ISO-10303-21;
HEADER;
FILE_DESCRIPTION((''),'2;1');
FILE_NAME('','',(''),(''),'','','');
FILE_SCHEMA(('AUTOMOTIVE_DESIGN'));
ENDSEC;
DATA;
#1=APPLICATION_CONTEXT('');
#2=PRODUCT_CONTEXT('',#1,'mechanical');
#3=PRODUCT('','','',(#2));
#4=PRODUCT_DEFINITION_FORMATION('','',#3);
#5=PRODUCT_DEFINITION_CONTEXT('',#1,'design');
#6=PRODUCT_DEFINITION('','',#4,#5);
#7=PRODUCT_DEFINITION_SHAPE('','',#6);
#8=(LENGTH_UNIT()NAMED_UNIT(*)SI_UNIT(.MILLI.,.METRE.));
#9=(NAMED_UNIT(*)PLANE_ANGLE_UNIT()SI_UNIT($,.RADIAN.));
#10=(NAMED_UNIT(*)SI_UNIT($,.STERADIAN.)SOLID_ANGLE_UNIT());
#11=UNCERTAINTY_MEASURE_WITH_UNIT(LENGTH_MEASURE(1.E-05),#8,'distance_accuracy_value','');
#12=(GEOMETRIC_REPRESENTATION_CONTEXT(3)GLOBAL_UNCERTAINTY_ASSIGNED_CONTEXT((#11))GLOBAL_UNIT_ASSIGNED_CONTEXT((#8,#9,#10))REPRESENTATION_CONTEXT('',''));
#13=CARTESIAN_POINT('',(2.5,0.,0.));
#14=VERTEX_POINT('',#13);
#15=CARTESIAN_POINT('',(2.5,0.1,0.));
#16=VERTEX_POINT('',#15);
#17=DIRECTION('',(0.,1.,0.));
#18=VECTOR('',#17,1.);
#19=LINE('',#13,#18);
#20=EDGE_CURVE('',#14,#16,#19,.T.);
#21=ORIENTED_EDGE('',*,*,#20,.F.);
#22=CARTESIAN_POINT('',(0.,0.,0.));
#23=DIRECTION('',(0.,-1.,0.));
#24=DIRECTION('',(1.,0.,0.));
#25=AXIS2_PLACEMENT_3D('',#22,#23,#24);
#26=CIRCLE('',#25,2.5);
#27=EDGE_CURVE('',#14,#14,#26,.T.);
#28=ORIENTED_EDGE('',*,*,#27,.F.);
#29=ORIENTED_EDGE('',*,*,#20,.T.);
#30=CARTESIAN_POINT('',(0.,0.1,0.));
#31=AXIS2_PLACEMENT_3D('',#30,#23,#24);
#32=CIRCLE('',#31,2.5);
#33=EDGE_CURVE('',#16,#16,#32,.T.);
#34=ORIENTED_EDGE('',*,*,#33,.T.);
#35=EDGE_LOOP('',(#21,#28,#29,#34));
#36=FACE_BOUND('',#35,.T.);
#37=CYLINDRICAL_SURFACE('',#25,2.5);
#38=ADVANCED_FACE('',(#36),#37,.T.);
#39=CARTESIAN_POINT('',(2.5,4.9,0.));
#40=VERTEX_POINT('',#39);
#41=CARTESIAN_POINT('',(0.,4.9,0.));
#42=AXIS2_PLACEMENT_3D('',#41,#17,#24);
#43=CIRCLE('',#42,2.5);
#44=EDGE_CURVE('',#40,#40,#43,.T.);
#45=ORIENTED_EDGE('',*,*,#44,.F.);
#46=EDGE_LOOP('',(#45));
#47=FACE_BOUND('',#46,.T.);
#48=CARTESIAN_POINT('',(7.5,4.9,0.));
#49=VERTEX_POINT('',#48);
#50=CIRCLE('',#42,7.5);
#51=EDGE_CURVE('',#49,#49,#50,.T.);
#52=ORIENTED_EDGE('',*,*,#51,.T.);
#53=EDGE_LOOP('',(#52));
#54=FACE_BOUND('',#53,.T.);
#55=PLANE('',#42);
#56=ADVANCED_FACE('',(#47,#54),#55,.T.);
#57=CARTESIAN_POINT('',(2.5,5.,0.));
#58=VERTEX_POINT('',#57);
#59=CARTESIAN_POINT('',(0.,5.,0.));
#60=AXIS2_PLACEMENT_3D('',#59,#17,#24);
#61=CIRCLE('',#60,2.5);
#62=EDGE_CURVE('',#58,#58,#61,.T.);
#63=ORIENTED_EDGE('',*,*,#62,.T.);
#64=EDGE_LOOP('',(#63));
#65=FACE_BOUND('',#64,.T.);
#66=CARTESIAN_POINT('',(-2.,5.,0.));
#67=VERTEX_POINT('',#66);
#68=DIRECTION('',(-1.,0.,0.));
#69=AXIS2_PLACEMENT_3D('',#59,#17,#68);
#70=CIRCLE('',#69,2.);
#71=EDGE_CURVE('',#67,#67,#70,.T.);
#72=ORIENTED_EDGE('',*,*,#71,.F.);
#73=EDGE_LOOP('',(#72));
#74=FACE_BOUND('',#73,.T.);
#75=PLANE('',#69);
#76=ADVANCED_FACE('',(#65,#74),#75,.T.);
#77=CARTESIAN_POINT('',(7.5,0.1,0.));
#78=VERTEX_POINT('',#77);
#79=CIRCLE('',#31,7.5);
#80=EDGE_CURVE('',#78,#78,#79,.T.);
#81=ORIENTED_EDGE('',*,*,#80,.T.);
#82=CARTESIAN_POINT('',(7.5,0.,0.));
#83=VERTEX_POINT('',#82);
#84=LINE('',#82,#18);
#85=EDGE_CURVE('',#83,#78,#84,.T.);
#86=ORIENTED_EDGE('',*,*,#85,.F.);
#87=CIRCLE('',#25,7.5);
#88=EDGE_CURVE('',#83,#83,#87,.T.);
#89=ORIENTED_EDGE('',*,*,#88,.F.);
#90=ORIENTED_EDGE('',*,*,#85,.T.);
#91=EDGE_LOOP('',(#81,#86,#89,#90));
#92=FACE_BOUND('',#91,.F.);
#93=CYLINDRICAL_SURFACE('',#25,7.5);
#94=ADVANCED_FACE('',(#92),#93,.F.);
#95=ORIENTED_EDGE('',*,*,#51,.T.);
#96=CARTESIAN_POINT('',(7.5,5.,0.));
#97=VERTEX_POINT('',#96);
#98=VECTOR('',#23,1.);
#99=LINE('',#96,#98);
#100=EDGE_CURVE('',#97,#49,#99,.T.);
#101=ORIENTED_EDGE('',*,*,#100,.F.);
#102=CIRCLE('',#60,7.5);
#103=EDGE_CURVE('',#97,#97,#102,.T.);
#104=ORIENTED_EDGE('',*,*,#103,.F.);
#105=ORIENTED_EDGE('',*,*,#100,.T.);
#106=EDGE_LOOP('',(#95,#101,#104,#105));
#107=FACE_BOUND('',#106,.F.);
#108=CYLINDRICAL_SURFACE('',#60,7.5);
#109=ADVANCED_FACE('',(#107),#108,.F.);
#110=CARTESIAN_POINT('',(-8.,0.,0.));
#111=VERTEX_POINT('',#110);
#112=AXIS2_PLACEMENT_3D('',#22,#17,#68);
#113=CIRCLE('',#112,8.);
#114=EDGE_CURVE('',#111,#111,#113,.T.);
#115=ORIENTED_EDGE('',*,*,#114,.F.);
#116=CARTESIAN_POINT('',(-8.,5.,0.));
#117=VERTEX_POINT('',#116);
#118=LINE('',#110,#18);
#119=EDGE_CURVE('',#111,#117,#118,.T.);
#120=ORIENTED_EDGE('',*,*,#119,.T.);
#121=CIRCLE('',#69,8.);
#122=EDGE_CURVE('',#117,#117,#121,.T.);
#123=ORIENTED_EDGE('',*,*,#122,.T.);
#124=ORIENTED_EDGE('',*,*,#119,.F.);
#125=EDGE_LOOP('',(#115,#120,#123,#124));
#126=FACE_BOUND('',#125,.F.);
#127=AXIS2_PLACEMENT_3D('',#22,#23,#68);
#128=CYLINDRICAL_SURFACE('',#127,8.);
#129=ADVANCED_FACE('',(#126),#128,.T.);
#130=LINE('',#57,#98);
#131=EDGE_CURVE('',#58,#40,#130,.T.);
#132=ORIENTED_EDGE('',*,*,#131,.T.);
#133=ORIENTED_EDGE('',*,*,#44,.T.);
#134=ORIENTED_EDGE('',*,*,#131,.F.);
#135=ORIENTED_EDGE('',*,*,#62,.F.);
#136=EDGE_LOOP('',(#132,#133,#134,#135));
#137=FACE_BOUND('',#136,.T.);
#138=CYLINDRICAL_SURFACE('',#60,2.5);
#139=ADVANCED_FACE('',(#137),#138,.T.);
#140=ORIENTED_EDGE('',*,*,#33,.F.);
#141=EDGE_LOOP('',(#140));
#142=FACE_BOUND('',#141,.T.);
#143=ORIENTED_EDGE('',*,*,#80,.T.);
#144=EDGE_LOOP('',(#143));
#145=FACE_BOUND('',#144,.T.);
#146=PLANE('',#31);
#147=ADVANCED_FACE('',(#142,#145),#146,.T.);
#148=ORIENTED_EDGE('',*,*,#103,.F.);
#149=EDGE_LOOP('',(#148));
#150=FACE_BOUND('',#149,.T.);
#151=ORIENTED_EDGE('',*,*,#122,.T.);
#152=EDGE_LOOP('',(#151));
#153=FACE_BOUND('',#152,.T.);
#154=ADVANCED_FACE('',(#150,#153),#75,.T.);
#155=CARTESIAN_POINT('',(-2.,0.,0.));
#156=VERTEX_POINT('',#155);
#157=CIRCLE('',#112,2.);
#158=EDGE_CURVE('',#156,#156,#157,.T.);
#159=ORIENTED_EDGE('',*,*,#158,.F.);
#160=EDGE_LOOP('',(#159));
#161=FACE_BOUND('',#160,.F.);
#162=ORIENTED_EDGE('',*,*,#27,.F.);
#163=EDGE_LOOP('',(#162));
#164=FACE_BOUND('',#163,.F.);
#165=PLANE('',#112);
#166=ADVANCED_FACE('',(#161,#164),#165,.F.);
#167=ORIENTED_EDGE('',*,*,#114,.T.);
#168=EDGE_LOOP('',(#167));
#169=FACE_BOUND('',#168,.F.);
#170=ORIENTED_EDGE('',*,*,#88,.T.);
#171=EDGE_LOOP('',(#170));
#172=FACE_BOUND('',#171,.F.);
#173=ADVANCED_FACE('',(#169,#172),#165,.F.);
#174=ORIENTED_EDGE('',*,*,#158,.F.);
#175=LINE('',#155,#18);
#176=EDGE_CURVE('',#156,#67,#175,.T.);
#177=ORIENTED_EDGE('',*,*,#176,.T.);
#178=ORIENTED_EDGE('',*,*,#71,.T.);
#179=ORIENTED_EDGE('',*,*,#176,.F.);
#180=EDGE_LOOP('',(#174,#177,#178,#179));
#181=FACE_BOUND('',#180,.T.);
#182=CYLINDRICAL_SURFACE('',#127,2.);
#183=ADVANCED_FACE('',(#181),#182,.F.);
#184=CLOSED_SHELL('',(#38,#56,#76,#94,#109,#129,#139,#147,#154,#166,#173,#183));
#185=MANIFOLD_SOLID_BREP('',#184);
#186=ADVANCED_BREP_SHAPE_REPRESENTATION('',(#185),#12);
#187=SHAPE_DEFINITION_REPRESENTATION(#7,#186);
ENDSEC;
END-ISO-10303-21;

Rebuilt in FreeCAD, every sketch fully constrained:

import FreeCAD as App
import Part
import Sketcher

doc = App.newDocument("Part")
params = doc.addObject("Spreadsheet::Sheet", "Params")
for row, (alias, value) in enumerate([
    ("sketch1_diameter", "16 mm"),
    ("sketch1_diameter2", "4 mm"),
    ("pad1_length", "5 mm"),
    ("sketch2_diameter", "15 mm"),
    ("sketch2_diameter2", "5 mm"),
    ("pocket1_length", "0.1 mm"),
    ("sketch3_diameter", "15 mm"),
    ("sketch3_diameter2", "5 mm"),
    ("pocket2_length", "0.1 mm"),
], start=1):
    params.set(f"A{row}", alias)
    params.set(f"B{row}", "=" + value)
    params.setAlias(f"B{row}", alias)

body = doc.addObject("PartDesign::Body", "Body")

sketch1 = body.newObject("Sketcher::SketchObject", "Sketch")
sketch1.AttachmentSupport = (doc.getObject("XZ_Plane"), [""])
sketch1.MapMode = "FlatFace"
sketch1.addGeometry([
    Part.Circle(App.Vector(0, 0, 0), App.Vector(0, 0, 1), 8),
    Part.Circle(App.Vector(0, 0, 0), App.Vector(0, 0, 1), 2),
], False)
sketch1.addConstraint([
    Sketcher.Constraint("Coincident", 0, 3, -1, 1),
    Sketcher.Constraint("Coincident", 1, 3, -1, 1),
    Sketcher.Constraint("Diameter", 0, 16.0),
    Sketcher.Constraint("Diameter", 1, 4.0),
])
sketch1.setExpression("Constraints[2]", "Params.sketch1_diameter")
sketch1.setExpression("Constraints[3]", "Params.sketch1_diameter2")
pad1 = body.newObject("PartDesign::Pad", "Pad")
pad1.Profile = sketch1
pad1.setExpression("Length", "Params.pad1_length")
pad1.Reversed = True

sketch2 = body.newObject("Sketcher::SketchObject", "Sketch001")
sketch2.AttachmentSupport = (doc.getObject("XZ_Plane"), [""])
sketch2.MapMode = "FlatFace"
sketch2.AttachmentOffset = App.Placement(App.Vector(0, 0, -5), App.Rotation())
sketch2.addGeometry([
    Part.Circle(App.Vector(0, 0, 0), App.Vector(0, 0, 1), 7.5),
    Part.Circle(App.Vector(0, 0, 0), App.Vector(0, 0, 1), 2.5),
], False)
sketch2.addConstraint([
    Sketcher.Constraint("Coincident", 0, 3, -1, 1),
    Sketcher.Constraint("Coincident", 1, 3, -1, 1),
    Sketcher.Constraint("Diameter", 0, 15.0),
    Sketcher.Constraint("Diameter", 1, 5.0),
])
sketch2.setExpression("Constraints[2]", "Params.sketch2_diameter")
sketch2.setExpression("Constraints[3]", "Params.sketch2_diameter2")
pocket1 = body.newObject("PartDesign::Pocket", "Pocket")
pocket1.Profile = sketch2
pocket1.setExpression("Length", "Params.pocket1_length")
pocket1.Reversed = True

sketch3 = body.newObject("Sketcher::SketchObject", "Sketch002")
sketch3.AttachmentSupport = (doc.getObject("XZ_Plane"), [""])
sketch3.MapMode = "FlatFace"
sketch3.addGeometry([
    Part.Circle(App.Vector(0, 0, 0), App.Vector(0, 0, 1), 7.5),
    Part.Circle(App.Vector(0, 0, 0), App.Vector(0, 0, 1), 2.5),
], False)
sketch3.addConstraint([
    Sketcher.Constraint("Coincident", 0, 3, -1, 1),
    Sketcher.Constraint("Coincident", 1, 3, -1, 1),
    Sketcher.Constraint("Diameter", 0, 15.0),
    Sketcher.Constraint("Diameter", 1, 5.0),
])
sketch3.setExpression("Constraints[2]", "Params.sketch3_diameter")
sketch3.setExpression("Constraints[3]", "Params.sketch3_diameter2")
pocket2 = body.newObject("PartDesign::Pocket", "Pocket001")
pocket2.Profile = sketch3
pocket2.setExpression("Length", "Params.pocket2_length")

doc.recompute()
